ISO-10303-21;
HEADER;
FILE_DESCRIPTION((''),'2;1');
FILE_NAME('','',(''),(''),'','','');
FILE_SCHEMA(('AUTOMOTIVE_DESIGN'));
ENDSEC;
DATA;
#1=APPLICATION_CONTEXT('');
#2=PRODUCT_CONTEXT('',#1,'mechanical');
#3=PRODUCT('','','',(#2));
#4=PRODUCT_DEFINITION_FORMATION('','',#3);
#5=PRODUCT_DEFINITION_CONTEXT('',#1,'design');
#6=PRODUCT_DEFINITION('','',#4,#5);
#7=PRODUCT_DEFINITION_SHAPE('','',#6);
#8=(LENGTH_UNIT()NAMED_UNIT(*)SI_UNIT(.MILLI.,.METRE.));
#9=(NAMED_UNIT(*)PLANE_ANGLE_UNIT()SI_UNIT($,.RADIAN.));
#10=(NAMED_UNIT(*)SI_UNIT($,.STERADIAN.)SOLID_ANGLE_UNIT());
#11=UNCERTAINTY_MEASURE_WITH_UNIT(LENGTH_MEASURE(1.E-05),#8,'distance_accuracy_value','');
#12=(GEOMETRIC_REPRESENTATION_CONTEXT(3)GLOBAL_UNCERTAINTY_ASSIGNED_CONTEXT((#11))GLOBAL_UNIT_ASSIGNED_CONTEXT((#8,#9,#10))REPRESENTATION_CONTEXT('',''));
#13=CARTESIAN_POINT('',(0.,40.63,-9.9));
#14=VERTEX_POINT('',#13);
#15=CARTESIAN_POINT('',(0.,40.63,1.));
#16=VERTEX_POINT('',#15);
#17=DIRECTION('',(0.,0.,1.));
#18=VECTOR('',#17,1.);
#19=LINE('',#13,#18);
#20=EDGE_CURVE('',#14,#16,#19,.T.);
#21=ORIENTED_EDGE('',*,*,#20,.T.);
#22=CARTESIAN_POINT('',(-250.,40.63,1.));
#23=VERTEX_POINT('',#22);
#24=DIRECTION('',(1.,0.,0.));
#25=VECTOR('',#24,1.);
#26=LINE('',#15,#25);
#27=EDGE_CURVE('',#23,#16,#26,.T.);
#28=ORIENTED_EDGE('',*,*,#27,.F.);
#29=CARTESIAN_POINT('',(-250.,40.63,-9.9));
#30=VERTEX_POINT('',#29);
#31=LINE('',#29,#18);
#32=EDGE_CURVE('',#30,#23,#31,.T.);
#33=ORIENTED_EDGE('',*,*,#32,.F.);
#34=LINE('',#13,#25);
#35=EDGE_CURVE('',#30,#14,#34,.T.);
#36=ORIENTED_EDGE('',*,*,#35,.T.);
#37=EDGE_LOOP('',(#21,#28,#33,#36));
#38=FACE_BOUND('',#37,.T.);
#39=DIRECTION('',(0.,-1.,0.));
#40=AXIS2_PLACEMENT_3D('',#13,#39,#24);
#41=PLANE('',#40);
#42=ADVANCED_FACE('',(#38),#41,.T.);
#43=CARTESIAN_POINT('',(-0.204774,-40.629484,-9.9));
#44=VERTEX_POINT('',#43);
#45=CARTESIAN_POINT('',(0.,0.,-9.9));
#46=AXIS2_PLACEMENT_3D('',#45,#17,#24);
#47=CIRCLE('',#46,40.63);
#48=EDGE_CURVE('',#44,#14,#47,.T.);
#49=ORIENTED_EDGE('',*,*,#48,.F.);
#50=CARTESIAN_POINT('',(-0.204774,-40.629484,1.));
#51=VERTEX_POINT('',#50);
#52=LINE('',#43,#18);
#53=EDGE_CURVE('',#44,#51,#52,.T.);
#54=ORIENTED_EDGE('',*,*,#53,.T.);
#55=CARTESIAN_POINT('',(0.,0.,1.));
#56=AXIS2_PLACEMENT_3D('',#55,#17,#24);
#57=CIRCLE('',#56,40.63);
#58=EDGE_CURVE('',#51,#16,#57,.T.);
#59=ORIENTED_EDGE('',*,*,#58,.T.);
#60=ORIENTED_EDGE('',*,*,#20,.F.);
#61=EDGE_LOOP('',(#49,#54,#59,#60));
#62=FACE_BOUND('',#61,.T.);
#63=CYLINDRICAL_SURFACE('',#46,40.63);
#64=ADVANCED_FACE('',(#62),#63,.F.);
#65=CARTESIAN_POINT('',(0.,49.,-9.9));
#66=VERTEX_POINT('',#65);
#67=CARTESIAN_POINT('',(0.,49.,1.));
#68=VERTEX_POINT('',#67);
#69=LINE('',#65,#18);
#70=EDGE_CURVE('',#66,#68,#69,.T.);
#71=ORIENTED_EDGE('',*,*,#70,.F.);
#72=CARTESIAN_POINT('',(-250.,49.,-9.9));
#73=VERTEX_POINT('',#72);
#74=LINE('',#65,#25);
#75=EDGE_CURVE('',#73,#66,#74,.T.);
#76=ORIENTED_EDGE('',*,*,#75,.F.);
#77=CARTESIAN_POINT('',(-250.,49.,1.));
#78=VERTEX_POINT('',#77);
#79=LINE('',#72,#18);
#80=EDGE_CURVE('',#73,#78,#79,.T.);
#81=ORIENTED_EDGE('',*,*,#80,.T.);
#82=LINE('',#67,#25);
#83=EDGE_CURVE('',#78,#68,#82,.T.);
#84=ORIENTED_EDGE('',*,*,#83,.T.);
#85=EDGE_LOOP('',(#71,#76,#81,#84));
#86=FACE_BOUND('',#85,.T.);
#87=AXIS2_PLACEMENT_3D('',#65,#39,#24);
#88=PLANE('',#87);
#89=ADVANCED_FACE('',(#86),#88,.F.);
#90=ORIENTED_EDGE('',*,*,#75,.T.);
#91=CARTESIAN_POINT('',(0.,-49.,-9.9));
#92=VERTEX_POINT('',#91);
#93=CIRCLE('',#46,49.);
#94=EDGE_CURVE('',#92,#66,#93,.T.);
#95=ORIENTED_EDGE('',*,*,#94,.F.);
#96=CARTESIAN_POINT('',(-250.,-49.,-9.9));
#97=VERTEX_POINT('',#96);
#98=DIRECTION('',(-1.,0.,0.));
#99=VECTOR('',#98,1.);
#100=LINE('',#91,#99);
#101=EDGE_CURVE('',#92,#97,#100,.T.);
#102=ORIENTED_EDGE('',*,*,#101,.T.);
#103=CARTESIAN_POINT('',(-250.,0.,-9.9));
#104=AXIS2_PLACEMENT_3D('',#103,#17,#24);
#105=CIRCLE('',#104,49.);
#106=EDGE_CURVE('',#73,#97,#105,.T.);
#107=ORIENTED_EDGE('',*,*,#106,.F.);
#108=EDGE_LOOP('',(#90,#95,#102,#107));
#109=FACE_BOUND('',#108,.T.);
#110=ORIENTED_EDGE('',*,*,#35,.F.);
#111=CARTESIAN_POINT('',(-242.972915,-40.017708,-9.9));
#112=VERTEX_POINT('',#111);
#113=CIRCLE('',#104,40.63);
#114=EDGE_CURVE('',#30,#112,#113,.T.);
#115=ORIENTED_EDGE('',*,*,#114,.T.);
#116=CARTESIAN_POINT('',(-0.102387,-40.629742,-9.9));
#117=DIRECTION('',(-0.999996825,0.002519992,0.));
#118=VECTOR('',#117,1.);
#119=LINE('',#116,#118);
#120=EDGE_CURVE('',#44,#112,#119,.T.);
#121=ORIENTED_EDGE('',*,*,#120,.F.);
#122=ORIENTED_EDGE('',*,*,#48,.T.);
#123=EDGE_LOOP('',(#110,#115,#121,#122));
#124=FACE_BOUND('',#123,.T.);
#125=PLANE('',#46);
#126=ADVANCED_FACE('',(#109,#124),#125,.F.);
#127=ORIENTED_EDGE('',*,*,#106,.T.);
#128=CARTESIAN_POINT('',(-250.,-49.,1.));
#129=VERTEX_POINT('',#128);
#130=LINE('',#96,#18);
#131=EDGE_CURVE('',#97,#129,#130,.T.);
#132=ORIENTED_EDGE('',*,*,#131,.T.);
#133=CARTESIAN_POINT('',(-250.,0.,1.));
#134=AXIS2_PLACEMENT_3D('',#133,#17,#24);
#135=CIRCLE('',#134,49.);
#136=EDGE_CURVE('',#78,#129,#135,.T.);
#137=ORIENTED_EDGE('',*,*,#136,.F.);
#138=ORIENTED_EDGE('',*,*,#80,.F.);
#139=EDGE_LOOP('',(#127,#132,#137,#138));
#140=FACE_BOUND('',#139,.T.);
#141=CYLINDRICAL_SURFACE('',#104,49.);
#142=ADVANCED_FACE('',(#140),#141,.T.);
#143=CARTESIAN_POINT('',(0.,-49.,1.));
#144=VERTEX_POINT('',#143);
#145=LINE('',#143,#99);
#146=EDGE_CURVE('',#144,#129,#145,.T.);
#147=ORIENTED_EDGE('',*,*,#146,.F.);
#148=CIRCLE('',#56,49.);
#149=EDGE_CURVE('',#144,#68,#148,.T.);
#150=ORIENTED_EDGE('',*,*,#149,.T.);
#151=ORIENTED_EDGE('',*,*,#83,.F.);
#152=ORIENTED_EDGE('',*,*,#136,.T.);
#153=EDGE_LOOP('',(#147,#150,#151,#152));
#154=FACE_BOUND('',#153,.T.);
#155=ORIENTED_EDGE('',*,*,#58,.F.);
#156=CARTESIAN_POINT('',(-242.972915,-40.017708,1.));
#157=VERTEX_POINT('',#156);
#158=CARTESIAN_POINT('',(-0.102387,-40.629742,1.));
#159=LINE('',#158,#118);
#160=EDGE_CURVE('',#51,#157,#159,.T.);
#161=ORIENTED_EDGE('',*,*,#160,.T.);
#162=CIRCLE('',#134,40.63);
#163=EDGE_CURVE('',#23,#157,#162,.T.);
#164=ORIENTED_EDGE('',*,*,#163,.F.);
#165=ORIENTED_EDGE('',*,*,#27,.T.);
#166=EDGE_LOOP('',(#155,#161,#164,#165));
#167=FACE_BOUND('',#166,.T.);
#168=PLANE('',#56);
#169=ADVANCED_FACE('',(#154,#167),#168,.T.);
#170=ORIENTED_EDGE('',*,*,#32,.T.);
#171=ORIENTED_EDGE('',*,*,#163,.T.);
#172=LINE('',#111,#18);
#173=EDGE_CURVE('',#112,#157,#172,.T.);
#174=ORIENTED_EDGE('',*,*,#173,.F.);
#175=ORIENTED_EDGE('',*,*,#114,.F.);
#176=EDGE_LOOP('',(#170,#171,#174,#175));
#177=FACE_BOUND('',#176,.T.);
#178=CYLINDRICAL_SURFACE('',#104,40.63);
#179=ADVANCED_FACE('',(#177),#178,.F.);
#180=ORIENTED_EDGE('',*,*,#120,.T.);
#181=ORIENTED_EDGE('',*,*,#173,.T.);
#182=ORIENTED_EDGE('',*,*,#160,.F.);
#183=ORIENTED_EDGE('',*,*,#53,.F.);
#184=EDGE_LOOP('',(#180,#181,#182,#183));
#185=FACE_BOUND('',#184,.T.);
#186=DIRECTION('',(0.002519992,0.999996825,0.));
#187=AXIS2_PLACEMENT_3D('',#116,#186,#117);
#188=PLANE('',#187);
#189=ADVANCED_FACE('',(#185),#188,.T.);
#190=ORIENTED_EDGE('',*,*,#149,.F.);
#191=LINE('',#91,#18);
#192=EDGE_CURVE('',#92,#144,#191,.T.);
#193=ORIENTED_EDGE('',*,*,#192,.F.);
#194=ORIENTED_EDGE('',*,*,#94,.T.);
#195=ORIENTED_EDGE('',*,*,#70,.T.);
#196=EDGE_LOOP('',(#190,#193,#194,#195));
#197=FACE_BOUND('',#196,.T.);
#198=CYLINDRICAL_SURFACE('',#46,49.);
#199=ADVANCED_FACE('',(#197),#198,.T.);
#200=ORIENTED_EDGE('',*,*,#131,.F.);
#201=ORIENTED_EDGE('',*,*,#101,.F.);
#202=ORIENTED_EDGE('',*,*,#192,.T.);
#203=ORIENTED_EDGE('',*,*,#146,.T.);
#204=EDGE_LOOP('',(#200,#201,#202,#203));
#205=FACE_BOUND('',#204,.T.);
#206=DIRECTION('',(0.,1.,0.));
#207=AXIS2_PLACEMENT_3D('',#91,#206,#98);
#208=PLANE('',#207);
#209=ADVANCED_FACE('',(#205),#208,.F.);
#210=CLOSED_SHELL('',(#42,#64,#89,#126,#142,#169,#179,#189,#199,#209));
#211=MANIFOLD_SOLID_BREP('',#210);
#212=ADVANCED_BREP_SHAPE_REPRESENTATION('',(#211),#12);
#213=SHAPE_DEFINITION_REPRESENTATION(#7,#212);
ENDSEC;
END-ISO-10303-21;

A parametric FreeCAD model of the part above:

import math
import FreeCAD as App
import Part
import Sketcher

V = App.Vector

doc = App.newDocument("Part")
body = doc.addObject("PartDesign::Body", "Body")

sketch1 = body.newObject("Sketcher::SketchObject", "Sketch")
sketch1.AttachmentSupport = (doc.getObject("XY_Plane"), [""])
sketch1.MapMode = "FlatFace"
sketch1.addGeometry(Part.LineSegment(V(-250, -49, 0), V(0, -49, 0)), False)
sketch1.addGeometry(Part.ArcOfCircle(Part.Circle(V(0, 0, 0), V(0, 0, 1), 49), math.radians(-90), math.radians(90)), False)
sketch1.addGeometry(Part.LineSegment(V(0, 49, 0), V(-250, 49, 0)), False)
sketch1.addGeometry(Part.ArcOfCircle(Part.Circle(V(-250, 0, 0), V(0, 0, 1), 49), math.radians(90), math.radians(270)), False)
sketch1.addGeometry(Part.LineSegment(V(-250, 40.63, 0), V(0, 40.63, 0)), False)
sketch1.addGeometry(Part.ArcOfCircle(Part.Circle(V(0, 0, 0), V(0, 0, 1), 40.63), math.radians(-90), math.radians(90)), False)
sketch1.addGeometry(Part.LineSegment(V(0, -40.63, 0), V(-0.204774, -40.629484, 0)), False)
sketch1.addGeometry(Part.LineSegment(V(-0.204774, -40.629484, 0), V(-242.972915, -40.017708, 0)), False)
sketch1.addGeometry(Part.ArcOfCircle(Part.Circle(V(-250, 0, 0), V(0, 0, 1), 40.63), math.radians(90), math.radians(279.959564)), False)
sketch1.addConstraint(Sketcher.Constraint("Tangent", 0, 2, 1, 1))
sketch1.addConstraint(Sketcher.Constraint("Tangent", 1, 2, 2, 1))
sketch1.addConstraint(Sketcher.Constraint("Tangent", 2, 2, 3, 1))
sketch1.addConstraint(Sketcher.Constraint("Tangent", 3, 2, 0, 1))
sketch1.addConstraint(Sketcher.Constraint("Tangent", 4, 2, 5, 2))
sketch1.addConstraint(Sketcher.Constraint("Coincident", 5, 1, 6, 1))
sketch1.addConstraint(Sketcher.Constraint("Coincident", 6, 2, 7, 1))
sketch1.addConstraint(Sketcher.Constraint("Coincident", 7, 2, 8, 2))
sketch1.addConstraint(Sketcher.Constraint("Tangent", 8, 1, 4, 1))
sketch1.addConstraint(Sketcher.Constraint("Horizontal", 0))
sketch1.addConstraint(Sketcher.Constraint("Horizontal", 2))
sketch1.addConstraint(Sketcher.Constraint("Horizontal", 4))
sketch1.addConstraint(Sketcher.Constraint("Coincident", 1, 3, -1, 1))
sketch1.addConstraint(Sketcher.Constraint("Coincident", 5, 3, -1, 1))
sketch1.addConstraint(Sketcher.Constraint("Coincident", 8, 3, 3, 3))
sketch1.addConstraint(Sketcher.Constraint("PointOnObject", 5, 1, -2))
sketch1.addConstraint(Sketcher.Constraint("Parallel", 6, 7))
sketch1.addConstraint(Sketcher.Constraint("Radius", 1, 49.0))
sketch1.addConstraint(Sketcher.Constraint("DistanceX", 0, 1, 0, 2, 250.0))
sketch1.addConstraint(Sketcher.Constraint("Radius", 5, 40.63))
sketch1.addConstraint(Sketcher.Constraint("Distance", 7, 242.768912))
sketch1.addConstraint(Sketcher.Constraint("DistanceY", 7, 2, -1, 1, 40.017708))
pad1 = body.newObject("PartDesign::Pad", "Pad")
pad1.Profile = sketch1
pad1.Type = "TwoLengths"
pad1.Length = 1
pad1.Length2 = 9.9

doc.recompute()
